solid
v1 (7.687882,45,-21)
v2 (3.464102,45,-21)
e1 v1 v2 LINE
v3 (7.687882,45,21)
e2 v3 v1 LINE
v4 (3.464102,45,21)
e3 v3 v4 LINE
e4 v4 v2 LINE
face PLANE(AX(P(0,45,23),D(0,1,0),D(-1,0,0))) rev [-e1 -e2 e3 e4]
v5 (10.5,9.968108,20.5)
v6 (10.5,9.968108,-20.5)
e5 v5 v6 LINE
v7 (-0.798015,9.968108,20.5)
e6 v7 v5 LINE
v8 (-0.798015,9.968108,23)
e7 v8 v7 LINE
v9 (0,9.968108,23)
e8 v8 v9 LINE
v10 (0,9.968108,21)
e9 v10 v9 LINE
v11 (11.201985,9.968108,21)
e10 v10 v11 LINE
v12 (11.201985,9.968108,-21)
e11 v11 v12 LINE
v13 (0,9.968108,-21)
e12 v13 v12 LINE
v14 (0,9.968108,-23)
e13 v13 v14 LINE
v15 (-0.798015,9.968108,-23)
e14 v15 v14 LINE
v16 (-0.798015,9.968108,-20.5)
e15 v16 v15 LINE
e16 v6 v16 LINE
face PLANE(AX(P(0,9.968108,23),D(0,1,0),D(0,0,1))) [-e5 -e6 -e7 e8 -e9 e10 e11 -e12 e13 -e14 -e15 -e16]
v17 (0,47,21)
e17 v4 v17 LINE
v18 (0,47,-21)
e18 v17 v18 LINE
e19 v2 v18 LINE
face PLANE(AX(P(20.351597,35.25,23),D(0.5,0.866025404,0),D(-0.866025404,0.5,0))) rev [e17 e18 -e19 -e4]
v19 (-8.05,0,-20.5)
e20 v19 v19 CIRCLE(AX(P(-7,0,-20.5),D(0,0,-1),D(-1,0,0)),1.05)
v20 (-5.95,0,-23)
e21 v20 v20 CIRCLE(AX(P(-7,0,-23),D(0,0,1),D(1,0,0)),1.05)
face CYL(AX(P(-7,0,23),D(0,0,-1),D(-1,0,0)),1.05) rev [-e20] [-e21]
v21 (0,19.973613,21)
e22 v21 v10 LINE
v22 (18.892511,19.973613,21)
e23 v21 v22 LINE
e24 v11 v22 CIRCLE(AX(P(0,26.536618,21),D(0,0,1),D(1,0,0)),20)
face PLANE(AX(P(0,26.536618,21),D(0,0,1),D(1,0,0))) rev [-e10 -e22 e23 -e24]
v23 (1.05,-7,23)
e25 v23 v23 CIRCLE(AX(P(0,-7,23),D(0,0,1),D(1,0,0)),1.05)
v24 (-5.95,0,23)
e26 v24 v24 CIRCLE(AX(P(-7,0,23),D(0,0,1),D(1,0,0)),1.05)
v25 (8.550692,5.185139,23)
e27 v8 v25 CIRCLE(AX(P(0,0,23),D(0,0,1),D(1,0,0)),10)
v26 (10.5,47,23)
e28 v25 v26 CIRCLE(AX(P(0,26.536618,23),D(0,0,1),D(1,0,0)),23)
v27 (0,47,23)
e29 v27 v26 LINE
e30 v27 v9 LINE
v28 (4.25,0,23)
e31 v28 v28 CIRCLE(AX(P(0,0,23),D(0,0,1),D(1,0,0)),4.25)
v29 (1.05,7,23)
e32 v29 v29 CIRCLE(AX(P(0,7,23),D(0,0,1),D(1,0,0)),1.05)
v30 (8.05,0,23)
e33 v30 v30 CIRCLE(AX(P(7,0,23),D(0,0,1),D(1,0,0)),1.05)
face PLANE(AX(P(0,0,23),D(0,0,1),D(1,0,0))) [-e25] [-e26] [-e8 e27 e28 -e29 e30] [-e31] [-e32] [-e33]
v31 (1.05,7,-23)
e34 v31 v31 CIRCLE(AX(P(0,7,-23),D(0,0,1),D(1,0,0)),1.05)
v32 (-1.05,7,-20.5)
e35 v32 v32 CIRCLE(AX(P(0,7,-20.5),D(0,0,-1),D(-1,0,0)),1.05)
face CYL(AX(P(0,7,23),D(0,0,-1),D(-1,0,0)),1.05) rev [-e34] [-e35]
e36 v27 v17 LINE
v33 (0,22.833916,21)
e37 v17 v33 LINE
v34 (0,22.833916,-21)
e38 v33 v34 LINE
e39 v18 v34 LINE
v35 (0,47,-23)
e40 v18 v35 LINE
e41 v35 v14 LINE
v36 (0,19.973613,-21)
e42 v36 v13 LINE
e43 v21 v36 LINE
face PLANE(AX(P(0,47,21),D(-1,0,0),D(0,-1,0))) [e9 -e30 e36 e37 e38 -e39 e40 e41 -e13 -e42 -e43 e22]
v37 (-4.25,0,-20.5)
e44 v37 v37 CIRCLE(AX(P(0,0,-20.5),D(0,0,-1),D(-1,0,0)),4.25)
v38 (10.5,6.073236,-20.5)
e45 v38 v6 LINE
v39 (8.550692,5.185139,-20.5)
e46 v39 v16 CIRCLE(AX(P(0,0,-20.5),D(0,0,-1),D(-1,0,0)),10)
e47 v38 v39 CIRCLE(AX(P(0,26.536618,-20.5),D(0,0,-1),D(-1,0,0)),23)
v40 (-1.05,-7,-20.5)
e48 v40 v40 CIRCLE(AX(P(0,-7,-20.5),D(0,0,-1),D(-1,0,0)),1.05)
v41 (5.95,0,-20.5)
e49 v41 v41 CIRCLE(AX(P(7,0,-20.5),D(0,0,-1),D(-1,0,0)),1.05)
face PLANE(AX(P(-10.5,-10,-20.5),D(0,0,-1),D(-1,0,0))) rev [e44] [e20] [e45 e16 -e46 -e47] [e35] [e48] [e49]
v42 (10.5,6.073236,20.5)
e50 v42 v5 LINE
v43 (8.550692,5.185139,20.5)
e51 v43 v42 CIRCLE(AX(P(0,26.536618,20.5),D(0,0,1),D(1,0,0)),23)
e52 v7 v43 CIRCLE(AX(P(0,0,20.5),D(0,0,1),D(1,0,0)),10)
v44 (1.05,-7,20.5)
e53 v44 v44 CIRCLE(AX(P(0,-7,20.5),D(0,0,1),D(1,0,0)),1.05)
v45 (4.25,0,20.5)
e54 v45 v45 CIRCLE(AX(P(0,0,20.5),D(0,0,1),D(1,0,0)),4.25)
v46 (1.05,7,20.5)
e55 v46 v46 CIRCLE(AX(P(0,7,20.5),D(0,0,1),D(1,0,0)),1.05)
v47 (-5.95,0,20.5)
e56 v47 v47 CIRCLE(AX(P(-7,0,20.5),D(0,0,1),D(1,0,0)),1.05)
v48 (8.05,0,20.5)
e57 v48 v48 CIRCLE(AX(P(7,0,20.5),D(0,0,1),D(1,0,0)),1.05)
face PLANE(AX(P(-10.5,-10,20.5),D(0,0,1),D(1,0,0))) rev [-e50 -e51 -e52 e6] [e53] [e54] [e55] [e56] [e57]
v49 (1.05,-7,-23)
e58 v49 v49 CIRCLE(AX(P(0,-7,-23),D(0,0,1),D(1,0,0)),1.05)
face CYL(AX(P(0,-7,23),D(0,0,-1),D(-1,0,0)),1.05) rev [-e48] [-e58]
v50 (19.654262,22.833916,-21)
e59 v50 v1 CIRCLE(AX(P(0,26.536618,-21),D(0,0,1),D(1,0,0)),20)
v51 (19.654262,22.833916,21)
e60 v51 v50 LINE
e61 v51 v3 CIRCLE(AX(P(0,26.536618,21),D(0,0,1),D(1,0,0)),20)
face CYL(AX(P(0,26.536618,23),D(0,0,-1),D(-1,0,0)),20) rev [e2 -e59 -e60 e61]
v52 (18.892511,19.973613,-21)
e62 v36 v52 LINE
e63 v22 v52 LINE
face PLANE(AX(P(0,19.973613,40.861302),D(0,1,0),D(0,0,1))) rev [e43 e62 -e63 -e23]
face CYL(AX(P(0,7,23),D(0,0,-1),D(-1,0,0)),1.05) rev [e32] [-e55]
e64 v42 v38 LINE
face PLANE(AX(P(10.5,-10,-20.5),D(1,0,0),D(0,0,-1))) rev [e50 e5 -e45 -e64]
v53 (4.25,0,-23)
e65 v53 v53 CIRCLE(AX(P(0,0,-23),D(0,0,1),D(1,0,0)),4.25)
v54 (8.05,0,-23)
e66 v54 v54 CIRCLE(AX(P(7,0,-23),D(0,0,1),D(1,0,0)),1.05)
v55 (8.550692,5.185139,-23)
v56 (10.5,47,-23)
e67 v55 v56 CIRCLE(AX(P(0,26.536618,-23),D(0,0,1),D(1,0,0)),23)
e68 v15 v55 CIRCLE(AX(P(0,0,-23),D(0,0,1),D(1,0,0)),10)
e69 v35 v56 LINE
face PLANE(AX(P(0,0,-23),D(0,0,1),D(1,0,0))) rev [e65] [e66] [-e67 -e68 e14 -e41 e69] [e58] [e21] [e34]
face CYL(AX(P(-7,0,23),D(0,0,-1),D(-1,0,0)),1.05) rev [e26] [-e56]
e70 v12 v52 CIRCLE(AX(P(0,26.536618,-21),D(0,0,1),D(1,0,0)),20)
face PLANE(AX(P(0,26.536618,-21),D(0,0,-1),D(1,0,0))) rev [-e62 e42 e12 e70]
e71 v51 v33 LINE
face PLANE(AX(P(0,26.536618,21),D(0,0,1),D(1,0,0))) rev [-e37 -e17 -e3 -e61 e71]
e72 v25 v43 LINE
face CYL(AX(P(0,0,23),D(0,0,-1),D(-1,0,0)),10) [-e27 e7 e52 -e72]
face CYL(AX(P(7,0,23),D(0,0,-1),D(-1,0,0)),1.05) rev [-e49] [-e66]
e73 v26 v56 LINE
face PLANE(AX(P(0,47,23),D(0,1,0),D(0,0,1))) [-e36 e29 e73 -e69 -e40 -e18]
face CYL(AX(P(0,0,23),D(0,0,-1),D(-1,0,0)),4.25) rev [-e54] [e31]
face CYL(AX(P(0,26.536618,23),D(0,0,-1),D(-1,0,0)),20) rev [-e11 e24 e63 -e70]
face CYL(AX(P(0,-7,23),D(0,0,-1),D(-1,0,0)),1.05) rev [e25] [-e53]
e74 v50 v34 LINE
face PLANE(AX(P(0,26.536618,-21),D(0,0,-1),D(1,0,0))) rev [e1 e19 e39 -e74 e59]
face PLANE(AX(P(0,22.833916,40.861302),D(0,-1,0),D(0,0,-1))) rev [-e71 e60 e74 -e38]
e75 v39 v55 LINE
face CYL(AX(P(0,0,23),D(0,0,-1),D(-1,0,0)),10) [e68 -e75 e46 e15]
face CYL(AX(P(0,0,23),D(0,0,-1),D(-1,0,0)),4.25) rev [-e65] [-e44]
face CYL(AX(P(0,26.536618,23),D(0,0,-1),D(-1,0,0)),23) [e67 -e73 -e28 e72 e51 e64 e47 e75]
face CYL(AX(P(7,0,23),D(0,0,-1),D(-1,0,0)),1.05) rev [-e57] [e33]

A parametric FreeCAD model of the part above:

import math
import FreeCAD as App
import Part
import Sketcher

V = App.Vector
Q = App.Units.Quantity

doc = App.newDocument("Part")
body = doc.addObject("PartDesign::Body", "Body")

sketch1 = body.newObject("Sketcher::SketchObject", "Sketch")
sketch1.AttachmentSupport = (doc.getObject("XY_Plane"), [""])
sketch1.MapMode = "FlatFace"
sketch1.addGeometry(Part.LineSegment(V(11.2, 10, 0), V(-0.8, 10, 0)), False)
sketch1.addGeometry(Part.ArcOfCircle(Part.Circle(V(0, 0, 0), V(0, 0, 1), 10), math.radians(95), math.radians(391)), False)
sketch1.addGeometry(Part.ArcOfCircle(Part.Circle(V(0, 26.5, 0), V(0, 0, 1), 23), math.radians(-68), math.radians(63)), False)
sketch1.addGeometry(Part.LineSegment(V(10.5, 47, 0), V(0, 47, 0)), False)
sketch1.addGeometry(Part.LineSegment(V(0, 47, 0), V(3.5, 45, 0)), False)
sketch1.addGeometry(Part.LineSegment(V(3.5, 45, 0), V(7.7, 45, 0)), False)
sketch1.addGeometry(Part.ArcOfCircle(Part.Circle(V(0, 26.5, 0), V(0, 0, 1), 20), math.radians(-56), math.radians(67)), False)
sketch1.addGeometry(Part.Circle(V(0, -7, 0), V(0, 0, 1), 1.1), False)
sketch1.addGeometry(Part.Circle(V(7, 0, 0), V(0, 0, 1), 1.1), False)
sketch1.addGeometry(Part.Circle(V(0, 0, 0), V(0, 0, 1), 4.2), False)
sketch1.addGeometry(Part.Circle(V(-7, 0, 0), V(0, 0, 1), 1.1), False)
sketch1.addGeometry(Part.Circle(V(0, 7, 0), V(0, 0, 1), 1.1), False)
sketch1.addConstraint(Sketcher.Constraint("Coincident", 0, 2, 1, 1))
sketch1.addConstraint(Sketcher.Constraint("Coincident", 1, 2, 2, 1))
sketch1.addConstraint(Sketcher.Constraint("Coincident", 2, 2, 3, 1))
sketch1.addConstraint(Sketcher.Constraint("Coincident", 3, 2, 4, 1))
sketch1.addConstraint(Sketcher.Constraint("Coincident", 4, 2, 5, 1))
sketch1.addConstraint(Sketcher.Constraint("Coincident", 5, 2, 6, 2))
sketch1.addConstraint(Sketcher.Constraint("Coincident", 6, 1, 0, 1))
sketch1.addConstraint(Sketcher.Constraint("Horizontal", 0))
sketch1.addConstraint(Sketcher.Constraint("Horizontal", 3))
sketch1.addConstraint(Sketcher.Constraint("Horizontal", 5))
sketch1.addConstraint(Sketcher.Constraint("Coincident", 1, 3, -1, 1))
sketch1.addConstraint(Sketcher.Constraint("Coincident", 9, 3, -1, 1))
sketch1.addConstraint(Sketcher.Constraint("Coincident", 6, 3, 2, 3))
sketch1.addConstraint(Sketcher.Constraint("Equal", 7, 8))
sketch1.addConstraint(Sketcher.Constraint("Equal", 8, 10))
sketch1.addConstraint(Sketcher.Constraint("Equal", 10, 11))
sketch1.addConstraint(Sketcher.Constraint("Symmetric", 8, 3, 10, 3, -1, 1))
sketch1.addConstraint(Sketcher.Constraint("Symmetric", 7, 3, 11, 3, -1, 1))
sketch1.addConstraint(Sketcher.Constraint("PointOnObject", 2, 3, -2))
sketch1.addConstraint(Sketcher.Constraint("PointOnObject", 7, 3, -2))
sketch1.addConstraint(Sketcher.Constraint("PointOnObject", 8, 3, -1))
sketch1.addConstraint(Sketcher.Constraint("PointOnObject", 3, 2, -2))
sketch1.addConstraint(Sketcher.Constraint("Radius", 1, Q("10 mm")))
sketch1.addConstraint(Sketcher.Constraint("Radius", 2, Q("23 mm")))
sketch1.addConstraint(Sketcher.Constraint("Radius", 6, Q("20 mm")))
sketch1.addConstraint(Sketcher.Constraint("Diameter", 7, Q("2.1 mm")))
sketch1.addConstraint(Sketcher.Constraint("Diameter", 9, Q("8.5 mm")))
sketch1.addConstraint(Sketcher.Constraint("DistanceX", 0, 2, 0, 1, Q("12 mm")))
sketch1.addConstraint(Sketcher.Constraint("Angle", 4, Q("-30 deg")))
sketch1.addConstraint(Sketcher.Constraint("Distance", 4, Q("4 mm")))
sketch1.addConstraint(Sketcher.Constraint("DistanceX", 3, 2, 3, 1, Q("10.5 mm")))
sketch1.addConstraint(Sketcher.Constraint("DistanceY", 7, 3, -1, 1, Q("7 mm")))
sketch1.addConstraint(Sketcher.Constraint("DistanceX", -1, 1, 8, 3, Q("7 mm")))
sketch1.addConstraint(Sketcher.Constraint("DistanceY", -1, 1, 2, 2, Q("47 mm")))
pad1 = body.newObject("PartDesign::Pad", "Pad")
pad1.Profile = sketch1
pad1.Length = 46
pad1.Midplane = True

sketch2 = body.newObject("Sketcher::SketchObject", "Sketch001")
sketch2.AttachmentSupport = (doc.getObject("XY_Plane"), [""])
sketch2.MapMode = "FlatFace"
sketch2.AttachmentOffset = App.Placement(V(0, 0, 23), App.Rotation())
sketch2.addGeometry(Part.LineSegment(V(3.5, 45, 0), V(0, 47, 0)), False)
sketch2.addGeometry(Part.LineSegment(V(0, 47, 0), V(0, 10, 0)), False)
sketch2.addGeometry(Part.LineSegment(V(0, 10, 0), V(11.2, 10, 0)), False)
sketch2.addGeometry(Part.ArcOfCircle(Part.Circle(V(0, 26.5, 0), V(0, 0, 1), 20), math.radians(-56), math.radians(67)), False)
sketch2.addGeometry(Part.LineSegment(V(7.7, 45, 0), V(3.5, 45, 0)), False)
sketch2.addConstraint(Sketcher.Constraint("Coincident", 0, 2, 1, 1))
sketch2.addConstraint(Sketcher.Constraint("Coincident", 1, 2, 2, 1))
sketch2.addConstraint(Sketcher.Constraint("Coincident", 2, 2, 3, 1))
sketch2.addConstraint(Sketcher.Constraint("Coincident", 3, 2, 4, 1))
sketch2.addConstraint(Sketcher.Constraint("Coincident", 4, 2, 0, 1))
sketch2.addConstraint(Sketcher.Constraint("Vertical", 1))
sketch2.addConstraint(Sketcher.Constraint("Horizontal", 2))
sketch2.addConstraint(Sketcher.Constraint("Horizontal", 4))
sketch2.addConstraint(Sketcher.Constraint("PointOnObject", 3, 3, -2))
sketch2.addConstraint(Sketcher.Constraint("PointOnObject", 0, 2, -2))
sketch2.addConstraint(Sketcher.Constraint("Radius", 3, Q("20 mm")))
sketch2.addConstraint(Sketcher.Constraint("Angle", 0, Q("150 deg")))
sketch2.addConstraint(Sketcher.Constraint("Distance", 0, Q("4 mm")))
sketch2.addConstraint(Sketcher.Constraint("DistanceY", -1, 1, 0, 2, Q("47 mm")))
sketch2.addConstraint(Sketcher.Constraint("DistanceX", 4, 2, 4, 1, Q("4.22378 mm")))
sketch2.addConstraint(Sketcher.Constraint("DistanceX", 2, 1, 2, 2, Q("11.201985 mm")))
pad2 = body.newObject("PartDesign::Pad", "Pad001")
pad2.Profile = sketch2
pad2.Length = 2
pad2.Reversed = True
doc.recompute()

mirrored = body.newObject("PartDesign::Mirrored", "Mirrored")
mirrored.Originals = [pad2]
mirrored.MirrorPlane = (doc.getObject("XY_Plane"), [""])
body.Tip = mirrored

sketch3 = body.newObject("Sketcher::SketchObject", "Sketch002")
sketch3.AttachmentSupport = (doc.getObject("XZ_Plane"), [""])
sketch3.MapMode = "FlatFace"
sketch3.AttachmentOffset = App.Placement(V(0, 0, -9.968108), App.Rotation())
sketch3.addGeometry(Part.LineSegment(V(-10, -20, 0), V(-10, 20, 0)), False)
sketch3.addGeometry(Part.LineSegment(V(-10, 20, 0), V(10, 20, 0)), False)
sketch3.addGeometry(Part.LineSegment(V(10, 20, 0), V(10, -20, 0)), False)
sketch3.addGeometry(Part.LineSegment(V(10, -20, 0), V(-10, -20, 0)), False)
sketch3.addConstraint(Sketcher.Constraint("Coincident", 0, 2, 1, 1))
sketch3.addConstraint(Sketcher.Constraint("Coincident", 1, 2, 2, 1))
sketch3.addConstraint(Sketcher.Constraint("Coincident", 2, 2, 3, 1))
sketch3.addConstraint(Sketcher.Constraint("Coincident", 3, 2, 0, 1))
sketch3.addConstraint(Sketcher.Constraint("Vertical", 0))
sketch3.addConstraint(Sketcher.Constraint("Horizontal", 1))
sketch3.addConstraint(Sketcher.Constraint("Vertical", 2))
sketch3.addConstraint(Sketcher.Constraint("Horizontal", 3))
sketch3.addConstraint(Sketcher.Constraint("Symmetric", 0, 2, 2, 2, -1, 1))
sketch3.addConstraint(Sketcher.Constraint("DistanceX", 1, 1, 1, 2, Q("21 mm")))
sketch3.addConstraint(Sketcher.Constraint("DistanceY", 0, 1, 0, 2, Q("41 mm")))
pocket1 = body.newObject("PartDesign::Pocket", "Pocket")
pocket1.Profile = sketch3
pocket1.Type = "ThroughAll"
pocket1.Reversed = True

sketch4 = body.newObject("Sketcher::SketchObject", "Sketch003")
sketch4.AttachmentSupport = (doc.getObject("XY_Plane"), [""])
sketch4.MapMode = "FlatFace"
sketch4.AttachmentOffset = App.Placement(V(0, 0, 21), App.Rotation())
sketch4.addGeometry(Part.LineSegment(V(19.7, 22.8, 0), V(0, 22.8, 0)), False)
sketch4.addGeometry(Part.LineSegment(V(0, 22.8, 0), V(0, 20, 0)), False)
sketch4.addGeometry(Part.LineSegment(V(0, 20, 0), V(18.9, 20, 0)), False)
sketch4.addGeometry(Part.ArcOfCircle(Part.Circle(V(0, 26.5, 0), V(0, 0, 1), 20), math.radians(-19.16), math.radians(-10.67)), False)
sketch4.addConstraint(Sketcher.Constraint("Coincident", 0, 2, 1, 1))
sketch4.addConstraint(Sketcher.Constraint("Coincident", 1, 2, 2, 1))
sketch4.addConstraint(Sketcher.Constraint("Coincident", 2, 2, 3, 1))
sketch4.addConstraint(Sketcher.Constraint("Coincident", 3, 2, 0, 1))
sketch4.addConstraint(Sketcher.Constraint("Horizontal", 0))
sketch4.addConstraint(Sketcher.Constraint("Vertical", 1))
sketch4.addConstraint(Sketcher.Constraint("Horizontal", 2))
sketch4.addConstraint(Sketcher.Constraint("PointOnObject", 3, 3, -2))
sketch4.addConstraint(Sketcher.Constraint("PointOnObject", 0, 2, -2))
sketch4.addConstraint(Sketcher.Constraint("Radius", 3, Q("20 mm")))
sketch4.addConstraint(Sketcher.Constraint("DistanceX", 0, 2, 0, 1, Q("19.654262 mm")))
sketch4.addConstraint(Sketcher.Constraint("DistanceX", 2, 1, 2, 2, Q("18.892511 mm")))
sketch4.addConstraint(Sketcher.Constraint("DistanceY", -1, 1, 3, 3, Q("26.536618 mm")))
pad3 = body.newObject("PartDesign::Pad", "Pad002")
pad3.Profile = sketch4
pad3.Length = 42
pad3.Reversed = True

doc.recompute()
